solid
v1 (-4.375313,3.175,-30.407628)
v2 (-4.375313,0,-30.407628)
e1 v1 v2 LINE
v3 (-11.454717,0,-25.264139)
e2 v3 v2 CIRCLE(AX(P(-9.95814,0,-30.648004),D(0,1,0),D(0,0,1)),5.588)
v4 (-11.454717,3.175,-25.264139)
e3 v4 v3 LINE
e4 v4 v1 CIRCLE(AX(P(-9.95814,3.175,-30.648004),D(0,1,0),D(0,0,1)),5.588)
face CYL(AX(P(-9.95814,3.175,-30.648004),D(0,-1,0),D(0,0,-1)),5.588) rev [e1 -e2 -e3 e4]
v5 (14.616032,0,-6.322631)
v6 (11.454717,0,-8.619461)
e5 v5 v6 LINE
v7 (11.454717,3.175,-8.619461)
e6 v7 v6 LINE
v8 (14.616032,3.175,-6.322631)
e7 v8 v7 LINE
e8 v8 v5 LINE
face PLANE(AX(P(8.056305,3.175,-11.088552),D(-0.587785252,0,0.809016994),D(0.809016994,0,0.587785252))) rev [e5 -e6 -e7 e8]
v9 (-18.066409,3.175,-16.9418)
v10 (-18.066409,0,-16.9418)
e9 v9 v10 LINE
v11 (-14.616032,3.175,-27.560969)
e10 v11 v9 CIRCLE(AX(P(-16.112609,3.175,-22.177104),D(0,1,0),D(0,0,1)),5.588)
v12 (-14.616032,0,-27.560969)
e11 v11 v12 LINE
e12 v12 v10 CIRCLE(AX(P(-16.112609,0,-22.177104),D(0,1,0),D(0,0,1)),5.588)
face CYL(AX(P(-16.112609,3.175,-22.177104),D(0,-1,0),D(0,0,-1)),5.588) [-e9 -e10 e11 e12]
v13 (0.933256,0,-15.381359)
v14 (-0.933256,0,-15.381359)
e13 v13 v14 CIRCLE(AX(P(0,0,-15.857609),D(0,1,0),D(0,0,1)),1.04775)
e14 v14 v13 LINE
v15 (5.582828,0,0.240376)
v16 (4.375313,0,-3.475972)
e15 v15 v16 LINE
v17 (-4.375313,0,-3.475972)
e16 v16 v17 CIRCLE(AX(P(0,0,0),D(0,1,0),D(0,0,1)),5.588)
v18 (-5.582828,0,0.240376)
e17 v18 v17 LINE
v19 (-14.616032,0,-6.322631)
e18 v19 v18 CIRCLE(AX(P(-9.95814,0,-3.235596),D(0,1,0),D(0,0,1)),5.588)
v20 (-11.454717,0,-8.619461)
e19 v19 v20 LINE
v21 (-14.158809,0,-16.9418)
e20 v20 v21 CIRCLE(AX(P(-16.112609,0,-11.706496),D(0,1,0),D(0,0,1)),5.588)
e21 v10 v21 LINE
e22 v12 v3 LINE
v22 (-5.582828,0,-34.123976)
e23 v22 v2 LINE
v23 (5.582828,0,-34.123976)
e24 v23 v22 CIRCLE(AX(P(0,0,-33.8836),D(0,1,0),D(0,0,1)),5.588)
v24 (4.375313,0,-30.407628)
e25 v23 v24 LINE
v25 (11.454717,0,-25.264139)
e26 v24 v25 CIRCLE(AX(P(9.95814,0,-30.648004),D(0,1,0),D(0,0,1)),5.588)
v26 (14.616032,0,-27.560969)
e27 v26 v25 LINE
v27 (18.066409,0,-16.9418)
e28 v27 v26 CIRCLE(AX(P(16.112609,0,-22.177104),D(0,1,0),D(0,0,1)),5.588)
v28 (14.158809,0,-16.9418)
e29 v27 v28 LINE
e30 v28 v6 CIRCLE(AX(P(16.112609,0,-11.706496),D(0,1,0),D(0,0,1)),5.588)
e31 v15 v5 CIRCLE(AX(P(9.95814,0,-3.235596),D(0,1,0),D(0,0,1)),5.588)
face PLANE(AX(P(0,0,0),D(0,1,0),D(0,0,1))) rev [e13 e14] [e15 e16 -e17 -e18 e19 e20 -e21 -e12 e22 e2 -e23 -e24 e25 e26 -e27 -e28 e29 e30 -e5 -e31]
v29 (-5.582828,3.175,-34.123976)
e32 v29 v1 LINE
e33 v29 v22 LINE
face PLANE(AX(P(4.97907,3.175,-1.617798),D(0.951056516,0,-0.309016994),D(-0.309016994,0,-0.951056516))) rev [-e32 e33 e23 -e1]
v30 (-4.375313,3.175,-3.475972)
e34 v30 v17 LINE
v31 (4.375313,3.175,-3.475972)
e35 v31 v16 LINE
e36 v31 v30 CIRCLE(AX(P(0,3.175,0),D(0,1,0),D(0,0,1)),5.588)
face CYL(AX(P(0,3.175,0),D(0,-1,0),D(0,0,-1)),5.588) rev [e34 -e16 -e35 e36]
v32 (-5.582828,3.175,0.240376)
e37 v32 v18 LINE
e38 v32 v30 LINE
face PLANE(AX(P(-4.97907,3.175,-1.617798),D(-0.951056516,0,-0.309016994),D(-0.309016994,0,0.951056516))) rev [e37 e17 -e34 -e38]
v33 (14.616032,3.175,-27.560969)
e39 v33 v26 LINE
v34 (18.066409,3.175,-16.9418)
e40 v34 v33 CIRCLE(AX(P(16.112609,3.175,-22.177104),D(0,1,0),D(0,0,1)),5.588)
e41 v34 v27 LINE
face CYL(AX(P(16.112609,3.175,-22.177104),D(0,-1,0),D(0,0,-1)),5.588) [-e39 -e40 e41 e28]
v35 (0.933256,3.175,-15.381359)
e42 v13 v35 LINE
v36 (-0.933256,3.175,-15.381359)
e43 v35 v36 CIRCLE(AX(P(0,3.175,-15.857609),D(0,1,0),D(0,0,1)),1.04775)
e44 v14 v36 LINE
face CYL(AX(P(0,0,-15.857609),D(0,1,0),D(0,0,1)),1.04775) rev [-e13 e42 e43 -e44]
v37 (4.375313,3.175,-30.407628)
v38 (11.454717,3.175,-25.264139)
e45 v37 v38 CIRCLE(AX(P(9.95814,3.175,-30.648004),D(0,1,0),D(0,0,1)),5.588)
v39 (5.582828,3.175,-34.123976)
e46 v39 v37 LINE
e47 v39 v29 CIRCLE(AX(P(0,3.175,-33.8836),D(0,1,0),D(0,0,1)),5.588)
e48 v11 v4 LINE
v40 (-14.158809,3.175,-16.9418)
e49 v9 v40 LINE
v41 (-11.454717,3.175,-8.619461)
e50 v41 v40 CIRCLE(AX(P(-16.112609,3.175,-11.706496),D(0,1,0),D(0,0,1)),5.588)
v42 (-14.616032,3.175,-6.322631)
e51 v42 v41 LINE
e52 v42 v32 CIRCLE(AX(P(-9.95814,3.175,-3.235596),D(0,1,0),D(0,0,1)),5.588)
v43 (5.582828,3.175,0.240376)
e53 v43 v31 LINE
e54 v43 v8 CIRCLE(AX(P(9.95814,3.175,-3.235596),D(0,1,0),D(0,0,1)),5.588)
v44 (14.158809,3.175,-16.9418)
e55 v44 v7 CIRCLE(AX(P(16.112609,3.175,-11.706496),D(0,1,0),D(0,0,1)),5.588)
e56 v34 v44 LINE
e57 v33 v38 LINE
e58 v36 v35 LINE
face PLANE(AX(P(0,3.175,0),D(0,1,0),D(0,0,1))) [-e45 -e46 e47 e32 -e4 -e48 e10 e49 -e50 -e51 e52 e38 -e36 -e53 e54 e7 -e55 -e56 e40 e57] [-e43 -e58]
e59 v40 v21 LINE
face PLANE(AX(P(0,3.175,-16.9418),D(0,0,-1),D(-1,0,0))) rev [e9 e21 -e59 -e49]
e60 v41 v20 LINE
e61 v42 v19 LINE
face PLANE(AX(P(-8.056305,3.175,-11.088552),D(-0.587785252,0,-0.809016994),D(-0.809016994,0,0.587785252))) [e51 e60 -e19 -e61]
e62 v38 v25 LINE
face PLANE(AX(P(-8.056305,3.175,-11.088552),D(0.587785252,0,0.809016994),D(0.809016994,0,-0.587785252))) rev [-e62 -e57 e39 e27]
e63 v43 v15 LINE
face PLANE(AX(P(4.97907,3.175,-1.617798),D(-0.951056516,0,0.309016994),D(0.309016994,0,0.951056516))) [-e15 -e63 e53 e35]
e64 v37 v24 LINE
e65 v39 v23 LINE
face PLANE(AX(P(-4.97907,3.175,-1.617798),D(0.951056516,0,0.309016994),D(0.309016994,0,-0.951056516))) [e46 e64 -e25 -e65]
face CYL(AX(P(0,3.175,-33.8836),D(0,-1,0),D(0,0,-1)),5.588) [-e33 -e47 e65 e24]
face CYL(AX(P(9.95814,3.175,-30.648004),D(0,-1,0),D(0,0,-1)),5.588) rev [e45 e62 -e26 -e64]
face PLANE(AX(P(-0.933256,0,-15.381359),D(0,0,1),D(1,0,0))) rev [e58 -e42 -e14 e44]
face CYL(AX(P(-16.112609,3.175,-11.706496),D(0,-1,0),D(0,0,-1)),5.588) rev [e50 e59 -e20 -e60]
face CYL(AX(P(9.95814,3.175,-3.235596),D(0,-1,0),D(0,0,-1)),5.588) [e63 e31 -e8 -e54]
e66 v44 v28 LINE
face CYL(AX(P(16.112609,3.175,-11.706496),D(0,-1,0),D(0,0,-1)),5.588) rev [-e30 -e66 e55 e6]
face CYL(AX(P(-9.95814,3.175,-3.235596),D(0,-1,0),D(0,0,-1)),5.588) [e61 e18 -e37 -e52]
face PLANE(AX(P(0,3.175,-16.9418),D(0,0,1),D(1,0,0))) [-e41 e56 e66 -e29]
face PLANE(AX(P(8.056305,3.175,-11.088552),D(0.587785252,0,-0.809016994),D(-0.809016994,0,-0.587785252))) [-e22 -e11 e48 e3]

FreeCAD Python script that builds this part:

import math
import FreeCAD as App
import Part
import Sketcher
Q = App.Units.Quantity

doc = App.newDocument("Part")
body = doc.addObject("PartDesign::Body", "Body")

sketch1 = doc.addObject("Sketcher::SketchObject", "Sketch")
body.addObject(sketch1)
sketch1.AttachmentSupport = (doc.XZ_Plane, [""])
sketch1.MapMode = "FlatFace"
sketch1.addGeometry([
    Part.LineSegment(App.Vector(-5.6, -34.1, 0), App.Vector(-4.4, -30.4, 0)),
    Part.ArcOfCircle(Part.Circle(App.Vector(-10, -30.6, 0), App.Vector(0, 0, 1), 5.6), math.radians(2), math.radians(106)),
    Part.LineSegment(App.Vector(-11.5, -25.3, 0), App.Vector(-14.6, -27.6, 0)),
    Part.ArcOfCircle(Part.Circle(App.Vector(-16.1, -22.2, 0), App.Vector(0, 0, 1), 5.6), math.radians(110), math.radians(286)),
    Part.LineSegment(App.Vector(-18.1, -16.9, 0), App.Vector(-14.2, -16.9, 0)),
    Part.ArcOfCircle(Part.Circle(App.Vector(-16.1, -11.7, 0), App.Vector(0, 0, 1), 5.6), math.radians(-70), math.radians(34)),
    Part.LineSegment(App.Vector(-11.5, -8.6, 0), App.Vector(-14.6, -6.3, 0)),
    Part.ArcOfCircle(Part.Circle(App.Vector(-10, -3.2, 0), App.Vector(0, 0, 1), 5.6), math.radians(38), math.radians(214)),
    Part.LineSegment(App.Vector(-5.6, 0.2, 0), App.Vector(-4.4, -3.5, 0)),
    Part.ArcOfCircle(Part.Circle(App.Vector(0, 0, 0), App.Vector(0, 0, 1), 5.6), math.radians(-142), math.radians(-38)),
    Part.LineSegment(App.Vector(4.4, -3.5, 0), App.Vector(5.6, 0.2, 0)),
    Part.ArcOfCircle(Part.Circle(App.Vector(10, -3.2, 0), App.Vector(0, 0, 1), 5.6), math.radians(-34), math.radians(142)),
    Part.LineSegment(App.Vector(14.6, -6.3, 0), App.Vector(11.5, -8.6, 0)),
    Part.ArcOfCircle(Part.Circle(App.Vector(16.1, -11.7, 0), App.Vector(0, 0, 1), 5.6), math.radians(146), math.radians(250)),
    Part.LineSegment(App.Vector(14.2, -16.9, 0), App.Vector(18.1, -16.9, 0)),
    Part.ArcOfCircle(Part.Circle(App.Vector(16.1, -22.2, 0), App.Vector(0, 0, 1), 5.6), math.radians(-106), math.radians(70)),
    Part.LineSegment(App.Vector(14.6, -27.6, 0), App.Vector(11.5, -25.3, 0)),
    Part.ArcOfCircle(Part.Circle(App.Vector(10, -30.6, 0), App.Vector(0, 0, 1), 5.6), math.radians(74), math.radians(178)),
    Part.LineSegment(App.Vector(4.4, -30.4, 0), App.Vector(5.6, -34.1, 0)),
    Part.ArcOfCircle(Part.Circle(App.Vector(0, -33.9, 0), App.Vector(0, 0, 1), 5.6), math.radians(-178), math.radians(-2)),
], False)
sketch1.addConstraint([
    Sketcher.Constraint("Coincident", 0, 2, 1, 1),
    Sketcher.Constraint("Coincident", 1, 2, 2, 1),
    Sketcher.Constraint("Coincident", 2, 2, 3, 2),
    Sketcher.Constraint("Coincident", 3, 1, 4, 1),
    Sketcher.Constraint("Coincident", 4, 2, 5, 1),
    Sketcher.Constraint("Coincident", 5, 2, 6, 1),
    Sketcher.Constraint("Coincident", 6, 2, 7, 2),
    Sketcher.Constraint("Coincident", 7, 1, 8, 1),
    Sketcher.Constraint("Coincident", 8, 2, 9, 1),
    Sketcher.Constraint("Coincident", 9, 2, 10, 1),
    Sketcher.Constraint("Coincident", 10, 2, 11, 2),
    Sketcher.Constraint("Coincident", 11, 1, 12, 1),
    Sketcher.Constraint("Coincident", 12, 2, 13, 1),
    Sketcher.Constraint("Coincident", 13, 2, 14, 1),
    Sketcher.Constraint("Coincident", 14, 2, 15, 2),
    Sketcher.Constraint("Coincident", 15, 1, 16, 1),
    Sketcher.Constraint("Coincident", 16, 2, 17, 1),
    Sketcher.Constraint("Coincident", 17, 2, 18, 1),
    Sketcher.Constraint("Coincident", 18, 2, 19, 2),
    Sketcher.Constraint("Coincident", 19, 1, 0, 1),
    Sketcher.Constraint("Horizontal", 4),
    Sketcher.Constraint("Horizontal", 14),
    Sketcher.Constraint("Coincident", 9, 3, -1, 1),
    Sketcher.Constraint("Equal", 1, 3),
    Sketcher.Constraint("Equal", 3, 5),
    Sketcher.Constraint("Equal", 5, 7),
    Sketcher.Constraint("Equal", 7, 9),
    Sketcher.Constraint("Equal", 9, 11),
    Sketcher.Constraint("Equal", 11, 13),
    Sketcher.Constraint("Equal", 13, 15),
    Sketcher.Constraint("Equal", 15, 17),
    Sketcher.Constraint("Equal", 17, 19),
    Sketcher.Constraint("Symmetric", 7, 3, 11, 3, -2),
    Sketcher.Constraint("Symmetric", 5, 3, 13, 3, -2),
    Sketcher.Constraint("Symmetric", 3, 3, 15, 3, -2),
    Sketcher.Constraint("Symmetric", 1, 3, 17, 3, -2),
    Sketcher.Constraint("Symmetric", 18, 2, 19, 1, -2),
    Sketcher.Constraint("Parallel", 0, 10),
    Sketcher.Constraint("Parallel", 2, 12),
    Sketcher.Constraint("Parallel", 6, 16),
    Sketcher.Constraint("Parallel", 8, 18),
    Sketcher.Constraint("Horizontal", 8, 2, 9, 2),
    Sketcher.Constraint("Horizontal", 7, 1, 10, 2),
    Sketcher.Constraint("Horizontal", 6, 2, 11, 1),
    Sketcher.Constraint("Horizontal", 5, 2, 12, 2),
    Sketcher.Constraint("Horizontal", 4, 2, 13, 2),
    Sketcher.Constraint("Horizontal", 2, 2, 15, 1),
    Sketcher.Constraint("Vertical", 3, 3, 5, 3),
    Sketcher.Constraint("Vertical", 1, 3, 7, 3),
    Sketcher.Constraint("Vertical", 1, 2, 5, 2),
    Sketcher.Constraint("Vertical", 2, 2, 6, 2),
    Sketcher.Constraint("Vertical", 0, 2, 8, 2),
    Sketcher.Constraint("Vertical", 10, 2, 18, 2),
    Sketcher.Constraint("Equal", 0, 2),
    Sketcher.Constraint("Radius", 1, Q("0.22 in")),
    Sketcher.Constraint("Angle", 0, Q("72 deg")),
    Sketcher.Constraint("Angle", 2, Q("-144 deg")),
    Sketcher.Constraint("DistanceY", 19, 3, -1, 1, Q("1.334 in")),
    Sketcher.Constraint("DistanceY", 3, 1, -1, 1, Q("0.667 in")),
    Sketcher.Constraint("DistanceX", 4, 1, 4, 2, 3.9076),
    Sketcher.Constraint("DistanceY", 1, 3, 3, 3, Q("0.3335 in")),
    Sketcher.Constraint("DistanceY", 5, 3, 7, 3, Q("0.3335 in")),
    Sketcher.Constraint("DistanceY", 1, 2, -1, 1, 25.264139),
    Sketcher.Constraint("DistanceX", 0, 2, 15, 3, 20.487922),
])
pad1 = doc.addObject("PartDesign::Pad", "Pad")
body.addObject(pad1)
pad1.Profile = sketch1
pad1.Length = Q("0.125 in")
pad1.Reversed = True

sketch2 = doc.addObject("Sketcher::SketchObject", "Sketch001")
body.addObject(sketch2)
sketch2.AttachmentSupport = (doc.XZ_Plane, [""])
sketch2.MapMode = "FlatFace"
sketch2.AttachmentOffset = App.Placement(App.Vector(0, 0, -0.125 * 25.4), App.Rotation())
sketch2.addGeometry([
    Part.LineSegment(App.Vector(-0.9, -15.4, 0), App.Vector(0.9, -15.4, 0)),
    Part.ArcOfCircle(Part.Circle(App.Vector(0, -15.9, 0), App.Vector(0, 0, 1), 1), math.radians(153), math.radians(387)),
], False)
sketch2.addConstraint([
    Sketcher.Constraint("Coincident", 0, 1, 1, 1),
    Sketcher.Constraint("Coincident", 1, 2, 0, 2),
    Sketcher.Constraint("Horizontal", 0),
    Sketcher.Constraint("PointOnObject", 1, 3, -2),
    Sketcher.Constraint("Radius", 1, 1.04775),
    Sketcher.Constraint("DistanceX", 0, 1, 0, 2, 1.866511),
    Sketcher.Constraint("DistanceY", 1, 3, -1, 1, 15.857609),
])
pocket1 = doc.addObject("PartDesign::Pocket", "Pocket")
body.addObject(pocket1)
pocket1.Profile = sketch2
pocket1.Type = "ThroughAll"
pocket1.Reversed = True

doc.recompute()
